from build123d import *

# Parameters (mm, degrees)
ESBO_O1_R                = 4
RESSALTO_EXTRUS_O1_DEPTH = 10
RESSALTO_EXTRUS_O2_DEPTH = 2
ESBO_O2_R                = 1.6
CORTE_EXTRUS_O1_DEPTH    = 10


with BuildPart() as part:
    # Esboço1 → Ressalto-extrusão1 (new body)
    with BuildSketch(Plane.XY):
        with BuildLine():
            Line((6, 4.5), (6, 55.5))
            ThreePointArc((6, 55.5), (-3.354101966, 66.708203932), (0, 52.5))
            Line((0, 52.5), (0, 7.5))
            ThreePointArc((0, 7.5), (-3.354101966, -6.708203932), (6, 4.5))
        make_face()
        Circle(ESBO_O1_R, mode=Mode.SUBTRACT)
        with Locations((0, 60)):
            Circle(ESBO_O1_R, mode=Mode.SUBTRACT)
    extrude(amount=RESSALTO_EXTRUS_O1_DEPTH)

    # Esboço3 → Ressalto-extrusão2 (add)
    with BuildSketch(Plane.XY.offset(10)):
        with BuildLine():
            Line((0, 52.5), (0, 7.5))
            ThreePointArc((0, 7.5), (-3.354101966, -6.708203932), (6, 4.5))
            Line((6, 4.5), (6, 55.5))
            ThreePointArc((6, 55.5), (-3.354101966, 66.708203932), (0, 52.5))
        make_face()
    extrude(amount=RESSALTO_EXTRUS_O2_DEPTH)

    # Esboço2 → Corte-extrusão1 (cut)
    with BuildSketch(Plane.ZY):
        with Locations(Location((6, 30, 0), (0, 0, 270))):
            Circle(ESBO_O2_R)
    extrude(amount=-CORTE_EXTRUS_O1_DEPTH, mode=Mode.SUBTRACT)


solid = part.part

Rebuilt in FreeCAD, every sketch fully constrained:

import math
import FreeCAD as App
import Part
import Sketcher
Q = App.Units.Quantity

doc = App.newDocument("Part")
body = doc.addObject("PartDesign::Body", "Body")

# Sketch on XY plane
sketch1 = body.newObject("Sketcher::SketchObject", "Sketch")
sketch1.AttachmentSupport = (doc.getObject("XY_Plane"), [""])
sketch1.MapMode = "FlatFace"
sketch1.addGeometry([
    Part.LineSegment(App.Vector(6, 4.5, 0), App.Vector(6, 55.5, 0)),  # 0
    Part.ArcOfCircle(Part.Circle(App.Vector(0, 60, 0), App.Vector(0, 0, 1), 7.5), math.radians(-37), math.radians(270)),  # 1
    Part.LineSegment(App.Vector(0, 52.5, 0), App.Vector(0, 7.5, 0)),  # 2
    Part.ArcOfCircle(Part.Circle(App.Vector(0, 0, 0), App.Vector(0, 0, 1), 7.5), math.radians(90), math.radians(397)),  # 3
    Part.Circle(App.Vector(0, 0, 0), App.Vector(0, 0, 1), 4),  # 4
    Part.Circle(App.Vector(0, 60, 0), App.Vector(0, 0, 1), 4),  # 5
], False)
sketch1.addConstraint([
    Sketcher.Constraint("Coincident", 0, 2, 1, 1),
    Sketcher.Constraint("Coincident", 1, 2, 2, 1),
    Sketcher.Constraint("Coincident", 2, 2, 3, 1),
    Sketcher.Constraint("Coincident", 3, 2, 0, 1),
    Sketcher.Constraint("Vertical", 0),
    Sketcher.Constraint("Vertical", 2),
    Sketcher.Constraint("Coincident", 3, 3, -1, 1),
    Sketcher.Constraint("Coincident", 4, 3, -1, 1),
    Sketcher.Constraint("Coincident", 5, 3, 1, 3),
    Sketcher.Constraint("Equal", 1, 3),
    Sketcher.Constraint("Equal", 4, 5),
    Sketcher.Constraint("PointOnObject", 1, 3, -2),
    Sketcher.Constraint("PointOnObject", 1, 2, -2),
    Sketcher.Constraint("Diameter", 4, Q("8 mm")),
    Sketcher.Constraint("Radius", 1, Q("7.5 mm")),
    Sketcher.Constraint("DistanceY", 0, 1, 0, 2, Q("51 mm")),
    Sketcher.Constraint("DistanceY", 2, 2, 2, 1, Q("45 mm")),
])
pad1 = body.newObject("PartDesign::Pad", "Pad")
pad1.Profile = sketch1
pad1.Length = 10

# Sketch on XY plane
sketch2 = body.newObject("Sketcher::SketchObject", "Sketch001")
sketch2.AttachmentSupport = (doc.getObject("XY_Plane"), [""])
sketch2.MapMode = "FlatFace"
sketch2.AttachmentOffset = App.Placement(App.Vector(0, 0, 10), App.Rotation())
sketch2.addGeometry([
    Part.LineSegment(App.Vector(0, 52, 0), App.Vector(0, 8, 0)),
    Part.ArcOfCircle(Part.Circle(App.Vector(0, 0, 0), App.Vector(0, 0, 1), 8), math.radians(90), math.radians(397)),
    Part.LineSegment(App.Vector(6, 4, 0), App.Vector(6, 56, 0)),
    Part.ArcOfCircle(Part.Circle(App.Vector(0, 60, 0), App.Vector(0, 0, 1), 8), math.radians(-37), math.radians(270)),
], False)
sketch2.addConstraint([
    Sketcher.Constraint("Coincident", 0, 2, 1, 1),
    Sketcher.Constraint("Coincident", 1, 2, 2, 1),
    Sketcher.Constraint("Coincident", 2, 2, 3, 1),
    Sketcher.Constraint("Coincident", 3, 2, 0, 1),
    Sketcher.Constraint("Vertical", 0),
    Sketcher.Constraint("Vertical", 2),
    Sketcher.Constraint("Coincident", 1, 3, -1, 1),
    Sketcher.Constraint("Equal", 1, 3),
    Sketcher.Constraint("PointOnObject", 3, 3, -2),
    Sketcher.Constraint("PointOnObject", 0, 2, -2),
    Sketcher.Constraint("Radius", 1, Q("7.5 mm")),
    Sketcher.Constraint("DistanceY", 0, 2, 0, 1, Q("45 mm")),
    Sketcher.Constraint("DistanceY", 2, 1, 2, 2, Q("51 mm")),
])
pad2 = body.newObject("PartDesign::Pad", "Pad001")
pad2.Profile = sketch2
pad2.Length = 2

# Sketch on YZ plane
sketch3 = body.newObject("Sketcher::SketchObject", "Sketch002")
sketch3.AttachmentSupport = (doc.getObject("YZ_Plane"), [""])
sketch3.MapMode = "FlatFace"
sketch3.addGeometry(Part.Circle(App.Vector(30, 6, 0), App.Vector(0, 0, 1), 1.6), False)
sketch3.addConstraint([
    Sketcher.Constraint("Diameter", 0, Q("3.2 mm")),
    Sketcher.Constraint("DistanceX", -1, 1, 0, 3, Q("30 mm")),
    Sketcher.Constraint("DistanceY", -1, 1, 0, 3, Q("6 mm")),
])
pocket1 = body.newObject("PartDesign::Pocket", "Pocket")
pocket1.Profile = sketch3
pocket1.Length = 10
pocket1.Reversed = True

doc.recompute()
